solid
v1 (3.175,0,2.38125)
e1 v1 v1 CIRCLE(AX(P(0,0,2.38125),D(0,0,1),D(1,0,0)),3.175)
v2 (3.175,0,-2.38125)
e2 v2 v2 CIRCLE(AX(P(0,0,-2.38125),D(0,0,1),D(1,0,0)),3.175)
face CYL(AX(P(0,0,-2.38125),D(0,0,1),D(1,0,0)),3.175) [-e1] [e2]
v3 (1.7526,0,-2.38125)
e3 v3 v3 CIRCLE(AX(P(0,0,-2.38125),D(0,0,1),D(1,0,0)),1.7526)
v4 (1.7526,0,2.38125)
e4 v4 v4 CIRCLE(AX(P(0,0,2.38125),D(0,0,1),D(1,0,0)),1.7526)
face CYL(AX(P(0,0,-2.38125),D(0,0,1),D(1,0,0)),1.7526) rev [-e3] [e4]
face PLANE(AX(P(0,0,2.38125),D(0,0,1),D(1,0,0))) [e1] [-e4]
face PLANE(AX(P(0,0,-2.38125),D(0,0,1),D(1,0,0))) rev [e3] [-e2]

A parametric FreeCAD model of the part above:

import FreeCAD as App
import Part
import Sketcher
Q = App.Units.Quantity

doc = App.newDocument("Part")
body = doc.addObject("PartDesign::Body", "Body")

# Sketch on XY plane
sketch1 = body.newObject("Sketcher::SketchObject", "Sketch")
sketch1.AttachmentSupport = (doc.getObject("XY_Plane"), [""])
sketch1.MapMode = "FlatFace"
sketch1.addGeometry([
    Part.Circle(App.Vector(0, 0, 0), App.Vector(0, 0, 1), 3.2),
    Part.Circle(App.Vector(0, 0, 0), App.Vector(0, 0, 1), 1.8),
], False)
sketch1.addConstraint([
    Sketcher.Constraint("Coincident", 0, 3, -1, 1),
    Sketcher.Constraint("Coincident", 1, 3, -1, 1),
    Sketcher.Constraint("Diameter", 0, Q("0.25 in")),
    Sketcher.Constraint("Diameter", 1, Q("0.138 in")),
])
pad1 = body.newObject("PartDesign::Pad", "Pad")
pad1.Profile = sketch1
pad1.Length = Q("0.1875 in")
pad1.Midplane = True

doc.recompute()
